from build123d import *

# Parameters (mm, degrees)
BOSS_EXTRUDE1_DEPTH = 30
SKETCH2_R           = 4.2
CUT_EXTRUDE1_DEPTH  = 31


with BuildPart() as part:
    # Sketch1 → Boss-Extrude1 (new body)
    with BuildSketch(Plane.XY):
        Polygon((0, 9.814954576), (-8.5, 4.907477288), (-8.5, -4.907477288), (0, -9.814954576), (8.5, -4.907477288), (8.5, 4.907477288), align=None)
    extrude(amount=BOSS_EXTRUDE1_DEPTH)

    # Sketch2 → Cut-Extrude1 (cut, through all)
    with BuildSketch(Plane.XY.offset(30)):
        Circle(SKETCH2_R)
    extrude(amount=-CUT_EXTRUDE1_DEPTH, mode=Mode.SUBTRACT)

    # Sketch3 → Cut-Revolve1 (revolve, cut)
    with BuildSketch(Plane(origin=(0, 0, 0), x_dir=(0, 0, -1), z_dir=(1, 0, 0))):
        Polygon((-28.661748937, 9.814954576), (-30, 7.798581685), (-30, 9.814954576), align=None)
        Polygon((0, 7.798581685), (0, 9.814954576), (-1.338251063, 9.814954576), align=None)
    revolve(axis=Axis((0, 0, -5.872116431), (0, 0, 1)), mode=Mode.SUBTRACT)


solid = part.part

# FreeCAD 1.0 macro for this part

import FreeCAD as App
import Part
import Sketcher
from FreeCAD import Vector
Q = App.Units.Quantity

doc = App.newDocument("Part")
body = doc.addObject("PartDesign::Body", "Body")

# Sketch on XY plane
sketch1 = body.newObject("Sketcher::SketchObject", "Sketch")
sketch1.AttachmentSupport = (doc.getObject("XY_Plane"), [""])
sketch1.MapMode = "FlatFace"
sketch1.addGeometry(Part.LineSegment(Vector(0, 9.814955, 0), Vector(-8.5, 4.907477, 0)), False)
sketch1.addGeometry(Part.LineSegment(Vector(-8.5, 4.907477, 0), Vector(-8.5, -4.907477, 0)), False)
sketch1.addGeometry(Part.LineSegment(Vector(-8.5, -4.907477, 0), Vector(0, -9.814955, 0)), False)
sketch1.addGeometry(Part.LineSegment(Vector(0, -9.814955, 0), Vector(8.5, -4.907477, 0)), False)
sketch1.addGeometry(Part.LineSegment(Vector(8.5, -4.907477, 0), Vector(8.5, 4.907477, 0)), False)
sketch1.addGeometry(Part.LineSegment(Vector(8.5, 4.907477, 0), Vector(0, 9.814955, 0)), False)
sketch1.addConstraint(Sketcher.Constraint("Coincident", 0, 2, 1, 1))
sketch1.addConstraint(Sketcher.Constraint("Coincident", 1, 2, 2, 1))
sketch1.addConstraint(Sketcher.Constraint("Coincident", 2, 2, 3, 1))
sketch1.addConstraint(Sketcher.Constraint("Coincident", 3, 2, 4, 1))
sketch1.addConstraint(Sketcher.Constraint("Coincident", 4, 2, 5, 1))
sketch1.addConstraint(Sketcher.Constraint("Coincident", 5, 2, 0, 1))
sketch1.addConstraint(Sketcher.Constraint("Vertical", 1))
sketch1.addConstraint(Sketcher.Constraint("Vertical", 4))
sketch1.addConstraint(Sketcher.Constraint("Symmetric", 0, 2, 3, 2, -1, 1))
sketch1.addConstraint(Sketcher.Constraint("Symmetric", 2, 2, 5, 2, -1, 1))
sketch1.addConstraint(Sketcher.Constraint("PointOnObject", 2, 2, -2))
sketch1.addConstraint(Sketcher.Constraint("Parallel", 2, 5))
sketch1.addConstraint(Sketcher.Constraint("Horizontal", 1, 2, 3, 2))
sketch1.addConstraint(Sketcher.Constraint("Angle", 0, Q("-150 deg")))
sketch1.addConstraint(Sketcher.Constraint("DistanceX", 1, 2, 3, 2, 17.0))
sketch1.addConstraint(Sketcher.Constraint("DistanceY", 1, 2, 1, 1, 9.814955))
pad1 = body.newObject("PartDesign::Pad", "Pad")
pad1.Profile = sketch1
pad1.Length = 30

# Sketch on XY plane
sketch2 = body.newObject("Sketcher::SketchObject", "Sketch001")
sketch2.AttachmentSupport = (doc.getObject("XY_Plane"), [""])
sketch2.MapMode = "FlatFace"
sketch2.AttachmentOffset = App.Placement(Vector(0, 0, 30), App.Rotation())
sketch2.addGeometry(Part.Circle(Vector(0, 0, 0), Vector(0, 0, 1), 4.2), False)
sketch2.addConstraint(Sketcher.Constraint("Coincident", 0, 3, -1, 1))
sketch2.addConstraint(Sketcher.Constraint("Diameter", 0, 8.4))
pocket1 = body.newObject("PartDesign::Pocket", "Pocket")
pocket1.Profile = sketch2
pocket1.Type = "ThroughAll"

# Sketch on YZ plane
sketch3 = body.newObject("Sketcher::SketchObject", "Sketch002")
sketch3.AttachmentSupport = (doc.getObject("YZ_Plane"), [""])
sketch3.MapMode = "FlatFace"
sketch3.addGeometry(Part.LineSegment(Vector(7.798582, 30, 0), Vector(9.814955, 28.661749, 0)), False)
sketch3.addGeometry(Part.LineSegment(Vector(9.814955, 28.661749, 0), Vector(9.814955, 30, 0)), False)
sketch3.addGeometry(Part.LineSegment(Vector(9.814955, 30, 0), Vector(7.798582, 30, 0)), False)
sketch3.addGeometry(Part.LineSegment(Vector(7.798582, 0, 0), Vector(9.814955, 0, 0)), False)
sketch3.addGeometry(Part.LineSegment(Vector(9.814955, 0, 0), Vector(9.814955, 1.338251, 0)), False)
sketch3.addGeometry(Part.LineSegment(Vector(9.814955, 1.338251, 0), Vector(7.798582, 0, 0)), False)
sketch3.addConstraint(Sketcher.Constraint("Coincident", 0, 2, 1, 1))
sketch3.addConstraint(Sketcher.Constraint("Coincident", 1, 2, 2, 1))
sketch3.addConstraint(Sketcher.Constraint("Coincident", 2, 2, 0, 1))
sketch3.addConstraint(Sketcher.Constraint("Coincident", 3, 2, 4, 1))
sketch3.addConstraint(Sketcher.Constraint("Coincident", 4, 2, 5, 1))
sketch3.addConstraint(Sketcher.Constraint("Coincident", 5, 2, 3, 1))
sketch3.addConstraint(Sketcher.Constraint("Vertical", 1))
sketch3.addConstraint(Sketcher.Constraint("Horizontal", 2))
sketch3.addConstraint(Sketcher.Constraint("Horizontal", 3))
sketch3.addConstraint(Sketcher.Constraint("Vertical", 4))
sketch3.addConstraint(Sketcher.Constraint("PointOnObject", 3, 2, -1))
sketch3.addConstraint(Sketcher.Constraint("Vertical", 1, 2, 3, 2))
sketch3.addConstraint(Sketcher.Constraint("Vertical", 2, 2, 5, 2))
sketch3.addConstraint(Sketcher.Constraint("Equal", 1, 4))
sketch3.addConstraint(Sketcher.Constraint("DistanceY", -1, 1, 1, 2, 30.0))
sketch3.addConstraint(Sketcher.Constraint("DistanceY", 1, 1, 1, 2, 1.338251))
sketch3.addConstraint(Sketcher.Constraint("DistanceX", 2, 2, 2, 1, 2.016373))
sketch3.addConstraint(Sketcher.Constraint("DistanceX", -1, 1, 2, 2, 7.798582))
groove = body.newObject("PartDesign::Groove", "Groove")
groove.Profile = sketch3
groove.ReferenceAxis = (sketch3, ["V_Axis"])
groove.Angle = 360

doc.recompute()
